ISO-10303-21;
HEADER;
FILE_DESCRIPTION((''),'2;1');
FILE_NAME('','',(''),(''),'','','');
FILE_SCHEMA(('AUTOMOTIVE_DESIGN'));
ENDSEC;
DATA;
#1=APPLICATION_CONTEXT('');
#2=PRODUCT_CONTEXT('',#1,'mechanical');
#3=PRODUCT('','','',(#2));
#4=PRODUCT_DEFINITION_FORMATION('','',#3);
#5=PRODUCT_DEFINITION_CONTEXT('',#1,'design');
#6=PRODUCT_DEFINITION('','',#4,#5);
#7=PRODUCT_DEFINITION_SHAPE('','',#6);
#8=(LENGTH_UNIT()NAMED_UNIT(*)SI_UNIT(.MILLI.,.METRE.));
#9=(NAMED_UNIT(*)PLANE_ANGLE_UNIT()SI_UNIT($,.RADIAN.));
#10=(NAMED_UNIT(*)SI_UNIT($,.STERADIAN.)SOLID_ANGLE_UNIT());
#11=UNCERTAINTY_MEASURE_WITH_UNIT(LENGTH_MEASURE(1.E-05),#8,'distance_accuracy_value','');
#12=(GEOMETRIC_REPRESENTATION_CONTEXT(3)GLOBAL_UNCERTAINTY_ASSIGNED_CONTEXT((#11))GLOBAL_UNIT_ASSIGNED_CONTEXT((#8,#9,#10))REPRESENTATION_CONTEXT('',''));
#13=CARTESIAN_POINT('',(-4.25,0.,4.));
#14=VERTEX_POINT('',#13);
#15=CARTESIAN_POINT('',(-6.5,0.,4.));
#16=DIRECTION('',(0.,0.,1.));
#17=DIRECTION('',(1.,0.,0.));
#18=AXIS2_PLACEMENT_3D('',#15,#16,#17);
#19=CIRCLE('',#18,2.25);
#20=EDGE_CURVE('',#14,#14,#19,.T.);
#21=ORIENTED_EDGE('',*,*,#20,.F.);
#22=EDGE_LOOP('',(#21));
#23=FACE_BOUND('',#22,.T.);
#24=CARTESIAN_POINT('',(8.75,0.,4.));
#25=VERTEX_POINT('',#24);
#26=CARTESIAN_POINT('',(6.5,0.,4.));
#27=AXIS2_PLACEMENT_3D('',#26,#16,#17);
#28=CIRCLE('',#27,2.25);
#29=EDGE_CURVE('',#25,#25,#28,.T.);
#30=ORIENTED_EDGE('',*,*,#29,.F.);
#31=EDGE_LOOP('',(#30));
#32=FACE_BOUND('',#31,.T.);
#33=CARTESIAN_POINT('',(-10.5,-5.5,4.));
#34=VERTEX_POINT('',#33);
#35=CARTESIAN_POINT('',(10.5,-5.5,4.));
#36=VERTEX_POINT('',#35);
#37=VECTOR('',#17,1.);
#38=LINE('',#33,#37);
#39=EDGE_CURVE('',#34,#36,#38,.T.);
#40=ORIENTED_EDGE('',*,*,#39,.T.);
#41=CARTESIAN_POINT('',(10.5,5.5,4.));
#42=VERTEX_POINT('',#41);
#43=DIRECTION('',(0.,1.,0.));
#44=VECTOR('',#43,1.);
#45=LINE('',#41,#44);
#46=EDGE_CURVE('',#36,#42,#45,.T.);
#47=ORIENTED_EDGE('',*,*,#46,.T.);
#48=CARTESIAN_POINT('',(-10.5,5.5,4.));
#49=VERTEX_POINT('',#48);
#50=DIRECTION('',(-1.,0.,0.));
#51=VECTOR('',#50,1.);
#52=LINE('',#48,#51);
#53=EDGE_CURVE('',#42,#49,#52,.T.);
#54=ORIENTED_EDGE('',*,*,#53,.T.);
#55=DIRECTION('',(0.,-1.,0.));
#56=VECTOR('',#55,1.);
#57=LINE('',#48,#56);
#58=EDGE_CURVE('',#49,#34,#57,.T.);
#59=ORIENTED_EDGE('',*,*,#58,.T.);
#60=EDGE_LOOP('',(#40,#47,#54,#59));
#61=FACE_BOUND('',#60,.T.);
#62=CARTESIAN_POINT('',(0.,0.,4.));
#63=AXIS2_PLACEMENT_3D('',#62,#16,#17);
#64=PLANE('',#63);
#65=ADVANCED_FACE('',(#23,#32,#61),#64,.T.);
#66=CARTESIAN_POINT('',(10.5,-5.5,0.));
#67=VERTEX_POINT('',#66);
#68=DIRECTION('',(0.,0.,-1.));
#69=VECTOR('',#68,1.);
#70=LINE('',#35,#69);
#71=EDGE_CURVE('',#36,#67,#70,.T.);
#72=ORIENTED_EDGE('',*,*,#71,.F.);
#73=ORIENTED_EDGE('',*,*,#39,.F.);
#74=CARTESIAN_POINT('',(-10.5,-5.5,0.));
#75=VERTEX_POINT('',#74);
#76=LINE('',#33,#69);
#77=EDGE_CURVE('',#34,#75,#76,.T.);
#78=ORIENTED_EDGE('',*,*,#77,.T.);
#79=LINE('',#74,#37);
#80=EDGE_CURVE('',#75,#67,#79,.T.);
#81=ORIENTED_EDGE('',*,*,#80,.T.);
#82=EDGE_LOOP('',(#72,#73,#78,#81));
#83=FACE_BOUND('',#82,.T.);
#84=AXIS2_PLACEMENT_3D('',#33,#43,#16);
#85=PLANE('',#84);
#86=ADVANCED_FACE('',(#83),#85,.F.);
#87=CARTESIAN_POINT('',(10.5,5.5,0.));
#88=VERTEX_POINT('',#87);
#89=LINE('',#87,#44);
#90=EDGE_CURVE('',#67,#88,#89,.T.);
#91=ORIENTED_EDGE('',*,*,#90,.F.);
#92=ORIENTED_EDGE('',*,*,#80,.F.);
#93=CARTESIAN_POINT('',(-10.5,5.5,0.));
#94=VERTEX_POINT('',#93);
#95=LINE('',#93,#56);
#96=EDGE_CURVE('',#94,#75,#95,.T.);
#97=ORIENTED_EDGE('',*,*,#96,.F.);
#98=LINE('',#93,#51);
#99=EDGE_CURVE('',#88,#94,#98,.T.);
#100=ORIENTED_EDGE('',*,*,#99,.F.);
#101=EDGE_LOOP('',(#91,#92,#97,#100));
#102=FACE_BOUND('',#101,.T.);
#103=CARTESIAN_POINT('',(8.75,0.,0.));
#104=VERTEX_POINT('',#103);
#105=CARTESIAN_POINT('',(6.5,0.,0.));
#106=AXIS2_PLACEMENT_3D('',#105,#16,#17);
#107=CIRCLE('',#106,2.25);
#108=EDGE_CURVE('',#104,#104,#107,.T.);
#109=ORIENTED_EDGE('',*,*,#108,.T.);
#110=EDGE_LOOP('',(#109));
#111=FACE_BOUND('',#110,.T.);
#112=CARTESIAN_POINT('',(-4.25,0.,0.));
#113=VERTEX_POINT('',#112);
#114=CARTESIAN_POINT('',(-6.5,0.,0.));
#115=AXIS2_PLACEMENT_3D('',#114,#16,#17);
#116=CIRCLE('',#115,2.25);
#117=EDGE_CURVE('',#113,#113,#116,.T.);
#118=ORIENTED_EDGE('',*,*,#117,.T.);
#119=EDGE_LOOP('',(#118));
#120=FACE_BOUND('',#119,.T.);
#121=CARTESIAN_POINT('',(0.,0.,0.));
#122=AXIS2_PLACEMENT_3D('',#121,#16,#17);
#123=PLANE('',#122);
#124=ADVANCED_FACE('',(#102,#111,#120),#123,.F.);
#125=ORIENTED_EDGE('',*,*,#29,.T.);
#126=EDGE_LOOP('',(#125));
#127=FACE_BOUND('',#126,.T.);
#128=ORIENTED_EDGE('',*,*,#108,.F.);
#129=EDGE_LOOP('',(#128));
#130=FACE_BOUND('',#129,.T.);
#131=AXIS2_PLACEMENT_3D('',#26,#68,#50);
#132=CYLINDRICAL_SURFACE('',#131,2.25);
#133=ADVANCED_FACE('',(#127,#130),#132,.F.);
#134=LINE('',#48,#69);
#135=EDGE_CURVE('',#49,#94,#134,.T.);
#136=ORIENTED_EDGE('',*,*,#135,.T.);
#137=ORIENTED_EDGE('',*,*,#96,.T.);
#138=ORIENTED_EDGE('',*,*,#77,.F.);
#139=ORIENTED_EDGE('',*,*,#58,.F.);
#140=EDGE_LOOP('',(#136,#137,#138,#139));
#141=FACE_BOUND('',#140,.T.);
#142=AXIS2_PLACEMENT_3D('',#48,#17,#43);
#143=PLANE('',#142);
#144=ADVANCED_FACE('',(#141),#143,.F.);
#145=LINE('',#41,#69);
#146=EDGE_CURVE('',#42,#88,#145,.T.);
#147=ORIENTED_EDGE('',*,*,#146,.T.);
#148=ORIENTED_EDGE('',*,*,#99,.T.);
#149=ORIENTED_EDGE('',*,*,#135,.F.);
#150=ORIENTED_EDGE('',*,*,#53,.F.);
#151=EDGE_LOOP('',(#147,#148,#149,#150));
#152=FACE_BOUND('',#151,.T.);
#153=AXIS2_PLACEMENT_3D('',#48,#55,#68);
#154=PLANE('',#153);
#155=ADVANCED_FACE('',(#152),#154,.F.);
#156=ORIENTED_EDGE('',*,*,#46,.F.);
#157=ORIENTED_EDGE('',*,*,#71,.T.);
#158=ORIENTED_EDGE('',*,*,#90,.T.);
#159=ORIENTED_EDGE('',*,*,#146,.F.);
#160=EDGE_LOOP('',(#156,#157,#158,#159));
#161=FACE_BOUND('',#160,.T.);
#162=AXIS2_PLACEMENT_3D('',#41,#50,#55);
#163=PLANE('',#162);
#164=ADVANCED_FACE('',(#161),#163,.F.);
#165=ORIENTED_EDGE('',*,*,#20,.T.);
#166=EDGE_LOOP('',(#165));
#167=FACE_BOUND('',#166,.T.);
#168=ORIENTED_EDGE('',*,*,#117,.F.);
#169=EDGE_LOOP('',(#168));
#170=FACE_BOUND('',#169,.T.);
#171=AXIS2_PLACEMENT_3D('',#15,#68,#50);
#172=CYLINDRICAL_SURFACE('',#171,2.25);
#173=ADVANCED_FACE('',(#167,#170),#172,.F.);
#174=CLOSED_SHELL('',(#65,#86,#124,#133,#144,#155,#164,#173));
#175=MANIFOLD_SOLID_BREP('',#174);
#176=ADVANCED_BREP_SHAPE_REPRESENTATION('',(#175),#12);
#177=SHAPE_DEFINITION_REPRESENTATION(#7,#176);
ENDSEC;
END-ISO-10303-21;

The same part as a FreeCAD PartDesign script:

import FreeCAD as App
import Part
import Sketcher
from FreeCAD import Vector

doc = App.newDocument("Part")
params = doc.addObject("Spreadsheet::Sheet", "Params")
for row, (alias, value) in enumerate([
    ("sketch1_diameter", "4.5 mm"),
    ("sketch1_width", "21 mm"),
    ("sketch1_height", "11 mm"),
    ("pad1_length", "4 mm"),
], start=1):
    params.set(f"A{row}", alias)
    params.set(f"B{row}", "=" + value)
    params.setAlias(f"B{row}", alias)

body = doc.addObject("PartDesign::Body", "Body")

# Sketch on XY plane
sketch1 = body.newObject("Sketcher::SketchObject", "Sketch")
sketch1.AttachmentSupport = (doc.getObject("XY_Plane"), [""])
sketch1.MapMode = "FlatFace"
sketch1.addGeometry([
    Part.LineSegment(Vector(-10.5, 5.5, 0), Vector(-10.5, -5.5, 0)),  # 0
    Part.LineSegment(Vector(-10.5, -5.5, 0), Vector(10.5, -5.5, 0)),  # 1
    Part.LineSegment(Vector(10.5, -5.5, 0), Vector(10.5, 5.5, 0)),  # 2
    Part.LineSegment(Vector(10.5, 5.5, 0), Vector(-10.5, 5.5, 0)),  # 3
    Part.Circle(Vector(-6.5, 0, 0), Vector(0, 0, 1), 2.25),  # 4
    Part.Circle(Vector(6.5, 0, 0), Vector(0, 0, 1), 2.25),  # 5
], False)
sketch1.addConstraint([
    Sketcher.Constraint("Coincident", 0, 2, 1, 1),
    Sketcher.Constraint("Coincident", 1, 2, 2, 1),
    Sketcher.Constraint("Coincident", 2, 2, 3, 1),
    Sketcher.Constraint("Coincident", 3, 2, 0, 1),
    Sketcher.Constraint("Vertical", 0),
    Sketcher.Constraint("Horizontal", 1),
    Sketcher.Constraint("Vertical", 2),
    Sketcher.Constraint("Horizontal", 3),
    Sketcher.Constraint("Equal", 4, 5),
    Sketcher.Constraint("Symmetric", 4, 3, 5, 3, -1, 1),
    Sketcher.Constraint("Symmetric", 0, 2, 2, 2, -1, 1),
    Sketcher.Constraint("PointOnObject", 4, 3, -1),
    Sketcher.Constraint("Diameter", 4, 4.5),
    Sketcher.Constraint("DistanceX", 1, 1, 1, 2, 21.0),
    Sketcher.Constraint("DistanceY", 0, 2, 0, 1, 11.0),
    Sketcher.Constraint("DistanceX", 4, 3, 5, 3, 13.0),
])
sketch1.setExpression("Constraints[12]", "Params.sketch1_diameter")
sketch1.setExpression("Constraints[13]", "Params.sketch1_width")
sketch1.setExpression("Constraints[14]", "Params.sketch1_height")
pad1 = body.newObject("PartDesign::Pad", "Pad")
pad1.Profile = sketch1
pad1.setExpression("Length", "Params.pad1_length")

doc.recompute()
